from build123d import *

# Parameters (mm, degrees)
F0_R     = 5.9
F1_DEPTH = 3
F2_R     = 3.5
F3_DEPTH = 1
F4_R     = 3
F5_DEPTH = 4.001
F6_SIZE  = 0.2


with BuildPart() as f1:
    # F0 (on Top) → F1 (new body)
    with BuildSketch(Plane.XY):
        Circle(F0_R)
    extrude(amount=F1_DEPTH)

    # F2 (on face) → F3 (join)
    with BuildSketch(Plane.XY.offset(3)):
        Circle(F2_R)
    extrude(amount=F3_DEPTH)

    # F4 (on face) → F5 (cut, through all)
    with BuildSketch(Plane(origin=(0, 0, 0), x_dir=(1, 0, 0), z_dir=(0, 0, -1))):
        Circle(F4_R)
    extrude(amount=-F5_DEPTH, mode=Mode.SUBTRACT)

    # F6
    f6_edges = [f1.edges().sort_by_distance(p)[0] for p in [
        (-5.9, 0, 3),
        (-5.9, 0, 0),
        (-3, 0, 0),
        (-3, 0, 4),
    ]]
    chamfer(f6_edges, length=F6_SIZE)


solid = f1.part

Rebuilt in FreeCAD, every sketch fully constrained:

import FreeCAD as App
import Part
import Sketcher
Q = App.Units.Quantity


def edges_at(feature, points):
    """Names of the edges that pass closest to the given points."""
    edges = feature.Shape.Edges
    near = lambda p: min(range(len(edges)), key=lambda i: edges[i].distToShape(Part.Vertex(*p))[0])
    return sorted({f"Edge{near(p) + 1}" for p in points})

doc = App.newDocument("Part")
body = doc.addObject("PartDesign::Body", "Body")

# Sketch on XY plane
sketch1 = doc.addObject("Sketcher::SketchObject", "Sketch")
body.addObject(sketch1)
sketch1.AttachmentSupport = (doc.XY_Plane, [""])
sketch1.MapMode = "FlatFace"
sketch1.addGeometry(Part.Circle(App.Vector(0, 0, 0), App.Vector(0, 0, 1), 6), False)
sketch1.addConstraint([
    Sketcher.Constraint("Coincident", 0, 3, -1, 1),
    Sketcher.Constraint("Diameter", 0, Q("11.8 mm")),
])
pad1 = doc.addObject("PartDesign::Pad", "Pad")
body.addObject(pad1)
pad1.Profile = sketch1
pad1.Length = 3

# Sketch on XY plane
sketch2 = doc.addObject("Sketcher::SketchObject", "Sketch001")
body.addObject(sketch2)
sketch2.AttachmentSupport = (doc.XY_Plane, [""])
sketch2.MapMode = "FlatFace"
sketch2.AttachmentOffset = App.Placement(App.Vector(0, 0, 3), App.Rotation())
sketch2.addGeometry(Part.Circle(App.Vector(0, 0, 0), App.Vector(0, 0, 1), 3.5), False)
sketch2.addConstraint([
    Sketcher.Constraint("Coincident", 0, 3, -1, 1),
    Sketcher.Constraint("Diameter", 0, Q("7 mm")),
])
pad2 = doc.addObject("PartDesign::Pad", "Pad001")
body.addObject(pad2)
pad2.Profile = sketch2
pad2.Length = 1

# Sketch on XY plane
sketch3 = doc.addObject("Sketcher::SketchObject", "Sketch002")
body.addObject(sketch3)
sketch3.AttachmentSupport = (doc.XY_Plane, [""])
sketch3.MapMode = "FlatFace"
sketch3.addGeometry(Part.Circle(App.Vector(0, 0, 0), App.Vector(0, 0, 1), 3), False)
sketch3.addConstraint([
    Sketcher.Constraint("Coincident", 0, 3, -1, 1),
    Sketcher.Constraint("Diameter", 0, Q("6 mm")),
])
pocket1 = doc.addObject("PartDesign::Pocket", "Pocket")
body.addObject(pocket1)
pocket1.Profile = sketch3
pocket1.Type = "ThroughAll"
pocket1.Reversed = True
doc.recompute()

chamfer = doc.addObject("PartDesign::Chamfer", "Chamfer")
body.addObject(chamfer)
chamfer.Base = (pocket1, edges_at(pocket1, [
    (-5.9, 0, 3),
    (-5.9, 0, 0),
    (-3, 0, 0),
    (-3, 0, 4),
]))
chamfer.Size = 0.2

doc.recompute()
